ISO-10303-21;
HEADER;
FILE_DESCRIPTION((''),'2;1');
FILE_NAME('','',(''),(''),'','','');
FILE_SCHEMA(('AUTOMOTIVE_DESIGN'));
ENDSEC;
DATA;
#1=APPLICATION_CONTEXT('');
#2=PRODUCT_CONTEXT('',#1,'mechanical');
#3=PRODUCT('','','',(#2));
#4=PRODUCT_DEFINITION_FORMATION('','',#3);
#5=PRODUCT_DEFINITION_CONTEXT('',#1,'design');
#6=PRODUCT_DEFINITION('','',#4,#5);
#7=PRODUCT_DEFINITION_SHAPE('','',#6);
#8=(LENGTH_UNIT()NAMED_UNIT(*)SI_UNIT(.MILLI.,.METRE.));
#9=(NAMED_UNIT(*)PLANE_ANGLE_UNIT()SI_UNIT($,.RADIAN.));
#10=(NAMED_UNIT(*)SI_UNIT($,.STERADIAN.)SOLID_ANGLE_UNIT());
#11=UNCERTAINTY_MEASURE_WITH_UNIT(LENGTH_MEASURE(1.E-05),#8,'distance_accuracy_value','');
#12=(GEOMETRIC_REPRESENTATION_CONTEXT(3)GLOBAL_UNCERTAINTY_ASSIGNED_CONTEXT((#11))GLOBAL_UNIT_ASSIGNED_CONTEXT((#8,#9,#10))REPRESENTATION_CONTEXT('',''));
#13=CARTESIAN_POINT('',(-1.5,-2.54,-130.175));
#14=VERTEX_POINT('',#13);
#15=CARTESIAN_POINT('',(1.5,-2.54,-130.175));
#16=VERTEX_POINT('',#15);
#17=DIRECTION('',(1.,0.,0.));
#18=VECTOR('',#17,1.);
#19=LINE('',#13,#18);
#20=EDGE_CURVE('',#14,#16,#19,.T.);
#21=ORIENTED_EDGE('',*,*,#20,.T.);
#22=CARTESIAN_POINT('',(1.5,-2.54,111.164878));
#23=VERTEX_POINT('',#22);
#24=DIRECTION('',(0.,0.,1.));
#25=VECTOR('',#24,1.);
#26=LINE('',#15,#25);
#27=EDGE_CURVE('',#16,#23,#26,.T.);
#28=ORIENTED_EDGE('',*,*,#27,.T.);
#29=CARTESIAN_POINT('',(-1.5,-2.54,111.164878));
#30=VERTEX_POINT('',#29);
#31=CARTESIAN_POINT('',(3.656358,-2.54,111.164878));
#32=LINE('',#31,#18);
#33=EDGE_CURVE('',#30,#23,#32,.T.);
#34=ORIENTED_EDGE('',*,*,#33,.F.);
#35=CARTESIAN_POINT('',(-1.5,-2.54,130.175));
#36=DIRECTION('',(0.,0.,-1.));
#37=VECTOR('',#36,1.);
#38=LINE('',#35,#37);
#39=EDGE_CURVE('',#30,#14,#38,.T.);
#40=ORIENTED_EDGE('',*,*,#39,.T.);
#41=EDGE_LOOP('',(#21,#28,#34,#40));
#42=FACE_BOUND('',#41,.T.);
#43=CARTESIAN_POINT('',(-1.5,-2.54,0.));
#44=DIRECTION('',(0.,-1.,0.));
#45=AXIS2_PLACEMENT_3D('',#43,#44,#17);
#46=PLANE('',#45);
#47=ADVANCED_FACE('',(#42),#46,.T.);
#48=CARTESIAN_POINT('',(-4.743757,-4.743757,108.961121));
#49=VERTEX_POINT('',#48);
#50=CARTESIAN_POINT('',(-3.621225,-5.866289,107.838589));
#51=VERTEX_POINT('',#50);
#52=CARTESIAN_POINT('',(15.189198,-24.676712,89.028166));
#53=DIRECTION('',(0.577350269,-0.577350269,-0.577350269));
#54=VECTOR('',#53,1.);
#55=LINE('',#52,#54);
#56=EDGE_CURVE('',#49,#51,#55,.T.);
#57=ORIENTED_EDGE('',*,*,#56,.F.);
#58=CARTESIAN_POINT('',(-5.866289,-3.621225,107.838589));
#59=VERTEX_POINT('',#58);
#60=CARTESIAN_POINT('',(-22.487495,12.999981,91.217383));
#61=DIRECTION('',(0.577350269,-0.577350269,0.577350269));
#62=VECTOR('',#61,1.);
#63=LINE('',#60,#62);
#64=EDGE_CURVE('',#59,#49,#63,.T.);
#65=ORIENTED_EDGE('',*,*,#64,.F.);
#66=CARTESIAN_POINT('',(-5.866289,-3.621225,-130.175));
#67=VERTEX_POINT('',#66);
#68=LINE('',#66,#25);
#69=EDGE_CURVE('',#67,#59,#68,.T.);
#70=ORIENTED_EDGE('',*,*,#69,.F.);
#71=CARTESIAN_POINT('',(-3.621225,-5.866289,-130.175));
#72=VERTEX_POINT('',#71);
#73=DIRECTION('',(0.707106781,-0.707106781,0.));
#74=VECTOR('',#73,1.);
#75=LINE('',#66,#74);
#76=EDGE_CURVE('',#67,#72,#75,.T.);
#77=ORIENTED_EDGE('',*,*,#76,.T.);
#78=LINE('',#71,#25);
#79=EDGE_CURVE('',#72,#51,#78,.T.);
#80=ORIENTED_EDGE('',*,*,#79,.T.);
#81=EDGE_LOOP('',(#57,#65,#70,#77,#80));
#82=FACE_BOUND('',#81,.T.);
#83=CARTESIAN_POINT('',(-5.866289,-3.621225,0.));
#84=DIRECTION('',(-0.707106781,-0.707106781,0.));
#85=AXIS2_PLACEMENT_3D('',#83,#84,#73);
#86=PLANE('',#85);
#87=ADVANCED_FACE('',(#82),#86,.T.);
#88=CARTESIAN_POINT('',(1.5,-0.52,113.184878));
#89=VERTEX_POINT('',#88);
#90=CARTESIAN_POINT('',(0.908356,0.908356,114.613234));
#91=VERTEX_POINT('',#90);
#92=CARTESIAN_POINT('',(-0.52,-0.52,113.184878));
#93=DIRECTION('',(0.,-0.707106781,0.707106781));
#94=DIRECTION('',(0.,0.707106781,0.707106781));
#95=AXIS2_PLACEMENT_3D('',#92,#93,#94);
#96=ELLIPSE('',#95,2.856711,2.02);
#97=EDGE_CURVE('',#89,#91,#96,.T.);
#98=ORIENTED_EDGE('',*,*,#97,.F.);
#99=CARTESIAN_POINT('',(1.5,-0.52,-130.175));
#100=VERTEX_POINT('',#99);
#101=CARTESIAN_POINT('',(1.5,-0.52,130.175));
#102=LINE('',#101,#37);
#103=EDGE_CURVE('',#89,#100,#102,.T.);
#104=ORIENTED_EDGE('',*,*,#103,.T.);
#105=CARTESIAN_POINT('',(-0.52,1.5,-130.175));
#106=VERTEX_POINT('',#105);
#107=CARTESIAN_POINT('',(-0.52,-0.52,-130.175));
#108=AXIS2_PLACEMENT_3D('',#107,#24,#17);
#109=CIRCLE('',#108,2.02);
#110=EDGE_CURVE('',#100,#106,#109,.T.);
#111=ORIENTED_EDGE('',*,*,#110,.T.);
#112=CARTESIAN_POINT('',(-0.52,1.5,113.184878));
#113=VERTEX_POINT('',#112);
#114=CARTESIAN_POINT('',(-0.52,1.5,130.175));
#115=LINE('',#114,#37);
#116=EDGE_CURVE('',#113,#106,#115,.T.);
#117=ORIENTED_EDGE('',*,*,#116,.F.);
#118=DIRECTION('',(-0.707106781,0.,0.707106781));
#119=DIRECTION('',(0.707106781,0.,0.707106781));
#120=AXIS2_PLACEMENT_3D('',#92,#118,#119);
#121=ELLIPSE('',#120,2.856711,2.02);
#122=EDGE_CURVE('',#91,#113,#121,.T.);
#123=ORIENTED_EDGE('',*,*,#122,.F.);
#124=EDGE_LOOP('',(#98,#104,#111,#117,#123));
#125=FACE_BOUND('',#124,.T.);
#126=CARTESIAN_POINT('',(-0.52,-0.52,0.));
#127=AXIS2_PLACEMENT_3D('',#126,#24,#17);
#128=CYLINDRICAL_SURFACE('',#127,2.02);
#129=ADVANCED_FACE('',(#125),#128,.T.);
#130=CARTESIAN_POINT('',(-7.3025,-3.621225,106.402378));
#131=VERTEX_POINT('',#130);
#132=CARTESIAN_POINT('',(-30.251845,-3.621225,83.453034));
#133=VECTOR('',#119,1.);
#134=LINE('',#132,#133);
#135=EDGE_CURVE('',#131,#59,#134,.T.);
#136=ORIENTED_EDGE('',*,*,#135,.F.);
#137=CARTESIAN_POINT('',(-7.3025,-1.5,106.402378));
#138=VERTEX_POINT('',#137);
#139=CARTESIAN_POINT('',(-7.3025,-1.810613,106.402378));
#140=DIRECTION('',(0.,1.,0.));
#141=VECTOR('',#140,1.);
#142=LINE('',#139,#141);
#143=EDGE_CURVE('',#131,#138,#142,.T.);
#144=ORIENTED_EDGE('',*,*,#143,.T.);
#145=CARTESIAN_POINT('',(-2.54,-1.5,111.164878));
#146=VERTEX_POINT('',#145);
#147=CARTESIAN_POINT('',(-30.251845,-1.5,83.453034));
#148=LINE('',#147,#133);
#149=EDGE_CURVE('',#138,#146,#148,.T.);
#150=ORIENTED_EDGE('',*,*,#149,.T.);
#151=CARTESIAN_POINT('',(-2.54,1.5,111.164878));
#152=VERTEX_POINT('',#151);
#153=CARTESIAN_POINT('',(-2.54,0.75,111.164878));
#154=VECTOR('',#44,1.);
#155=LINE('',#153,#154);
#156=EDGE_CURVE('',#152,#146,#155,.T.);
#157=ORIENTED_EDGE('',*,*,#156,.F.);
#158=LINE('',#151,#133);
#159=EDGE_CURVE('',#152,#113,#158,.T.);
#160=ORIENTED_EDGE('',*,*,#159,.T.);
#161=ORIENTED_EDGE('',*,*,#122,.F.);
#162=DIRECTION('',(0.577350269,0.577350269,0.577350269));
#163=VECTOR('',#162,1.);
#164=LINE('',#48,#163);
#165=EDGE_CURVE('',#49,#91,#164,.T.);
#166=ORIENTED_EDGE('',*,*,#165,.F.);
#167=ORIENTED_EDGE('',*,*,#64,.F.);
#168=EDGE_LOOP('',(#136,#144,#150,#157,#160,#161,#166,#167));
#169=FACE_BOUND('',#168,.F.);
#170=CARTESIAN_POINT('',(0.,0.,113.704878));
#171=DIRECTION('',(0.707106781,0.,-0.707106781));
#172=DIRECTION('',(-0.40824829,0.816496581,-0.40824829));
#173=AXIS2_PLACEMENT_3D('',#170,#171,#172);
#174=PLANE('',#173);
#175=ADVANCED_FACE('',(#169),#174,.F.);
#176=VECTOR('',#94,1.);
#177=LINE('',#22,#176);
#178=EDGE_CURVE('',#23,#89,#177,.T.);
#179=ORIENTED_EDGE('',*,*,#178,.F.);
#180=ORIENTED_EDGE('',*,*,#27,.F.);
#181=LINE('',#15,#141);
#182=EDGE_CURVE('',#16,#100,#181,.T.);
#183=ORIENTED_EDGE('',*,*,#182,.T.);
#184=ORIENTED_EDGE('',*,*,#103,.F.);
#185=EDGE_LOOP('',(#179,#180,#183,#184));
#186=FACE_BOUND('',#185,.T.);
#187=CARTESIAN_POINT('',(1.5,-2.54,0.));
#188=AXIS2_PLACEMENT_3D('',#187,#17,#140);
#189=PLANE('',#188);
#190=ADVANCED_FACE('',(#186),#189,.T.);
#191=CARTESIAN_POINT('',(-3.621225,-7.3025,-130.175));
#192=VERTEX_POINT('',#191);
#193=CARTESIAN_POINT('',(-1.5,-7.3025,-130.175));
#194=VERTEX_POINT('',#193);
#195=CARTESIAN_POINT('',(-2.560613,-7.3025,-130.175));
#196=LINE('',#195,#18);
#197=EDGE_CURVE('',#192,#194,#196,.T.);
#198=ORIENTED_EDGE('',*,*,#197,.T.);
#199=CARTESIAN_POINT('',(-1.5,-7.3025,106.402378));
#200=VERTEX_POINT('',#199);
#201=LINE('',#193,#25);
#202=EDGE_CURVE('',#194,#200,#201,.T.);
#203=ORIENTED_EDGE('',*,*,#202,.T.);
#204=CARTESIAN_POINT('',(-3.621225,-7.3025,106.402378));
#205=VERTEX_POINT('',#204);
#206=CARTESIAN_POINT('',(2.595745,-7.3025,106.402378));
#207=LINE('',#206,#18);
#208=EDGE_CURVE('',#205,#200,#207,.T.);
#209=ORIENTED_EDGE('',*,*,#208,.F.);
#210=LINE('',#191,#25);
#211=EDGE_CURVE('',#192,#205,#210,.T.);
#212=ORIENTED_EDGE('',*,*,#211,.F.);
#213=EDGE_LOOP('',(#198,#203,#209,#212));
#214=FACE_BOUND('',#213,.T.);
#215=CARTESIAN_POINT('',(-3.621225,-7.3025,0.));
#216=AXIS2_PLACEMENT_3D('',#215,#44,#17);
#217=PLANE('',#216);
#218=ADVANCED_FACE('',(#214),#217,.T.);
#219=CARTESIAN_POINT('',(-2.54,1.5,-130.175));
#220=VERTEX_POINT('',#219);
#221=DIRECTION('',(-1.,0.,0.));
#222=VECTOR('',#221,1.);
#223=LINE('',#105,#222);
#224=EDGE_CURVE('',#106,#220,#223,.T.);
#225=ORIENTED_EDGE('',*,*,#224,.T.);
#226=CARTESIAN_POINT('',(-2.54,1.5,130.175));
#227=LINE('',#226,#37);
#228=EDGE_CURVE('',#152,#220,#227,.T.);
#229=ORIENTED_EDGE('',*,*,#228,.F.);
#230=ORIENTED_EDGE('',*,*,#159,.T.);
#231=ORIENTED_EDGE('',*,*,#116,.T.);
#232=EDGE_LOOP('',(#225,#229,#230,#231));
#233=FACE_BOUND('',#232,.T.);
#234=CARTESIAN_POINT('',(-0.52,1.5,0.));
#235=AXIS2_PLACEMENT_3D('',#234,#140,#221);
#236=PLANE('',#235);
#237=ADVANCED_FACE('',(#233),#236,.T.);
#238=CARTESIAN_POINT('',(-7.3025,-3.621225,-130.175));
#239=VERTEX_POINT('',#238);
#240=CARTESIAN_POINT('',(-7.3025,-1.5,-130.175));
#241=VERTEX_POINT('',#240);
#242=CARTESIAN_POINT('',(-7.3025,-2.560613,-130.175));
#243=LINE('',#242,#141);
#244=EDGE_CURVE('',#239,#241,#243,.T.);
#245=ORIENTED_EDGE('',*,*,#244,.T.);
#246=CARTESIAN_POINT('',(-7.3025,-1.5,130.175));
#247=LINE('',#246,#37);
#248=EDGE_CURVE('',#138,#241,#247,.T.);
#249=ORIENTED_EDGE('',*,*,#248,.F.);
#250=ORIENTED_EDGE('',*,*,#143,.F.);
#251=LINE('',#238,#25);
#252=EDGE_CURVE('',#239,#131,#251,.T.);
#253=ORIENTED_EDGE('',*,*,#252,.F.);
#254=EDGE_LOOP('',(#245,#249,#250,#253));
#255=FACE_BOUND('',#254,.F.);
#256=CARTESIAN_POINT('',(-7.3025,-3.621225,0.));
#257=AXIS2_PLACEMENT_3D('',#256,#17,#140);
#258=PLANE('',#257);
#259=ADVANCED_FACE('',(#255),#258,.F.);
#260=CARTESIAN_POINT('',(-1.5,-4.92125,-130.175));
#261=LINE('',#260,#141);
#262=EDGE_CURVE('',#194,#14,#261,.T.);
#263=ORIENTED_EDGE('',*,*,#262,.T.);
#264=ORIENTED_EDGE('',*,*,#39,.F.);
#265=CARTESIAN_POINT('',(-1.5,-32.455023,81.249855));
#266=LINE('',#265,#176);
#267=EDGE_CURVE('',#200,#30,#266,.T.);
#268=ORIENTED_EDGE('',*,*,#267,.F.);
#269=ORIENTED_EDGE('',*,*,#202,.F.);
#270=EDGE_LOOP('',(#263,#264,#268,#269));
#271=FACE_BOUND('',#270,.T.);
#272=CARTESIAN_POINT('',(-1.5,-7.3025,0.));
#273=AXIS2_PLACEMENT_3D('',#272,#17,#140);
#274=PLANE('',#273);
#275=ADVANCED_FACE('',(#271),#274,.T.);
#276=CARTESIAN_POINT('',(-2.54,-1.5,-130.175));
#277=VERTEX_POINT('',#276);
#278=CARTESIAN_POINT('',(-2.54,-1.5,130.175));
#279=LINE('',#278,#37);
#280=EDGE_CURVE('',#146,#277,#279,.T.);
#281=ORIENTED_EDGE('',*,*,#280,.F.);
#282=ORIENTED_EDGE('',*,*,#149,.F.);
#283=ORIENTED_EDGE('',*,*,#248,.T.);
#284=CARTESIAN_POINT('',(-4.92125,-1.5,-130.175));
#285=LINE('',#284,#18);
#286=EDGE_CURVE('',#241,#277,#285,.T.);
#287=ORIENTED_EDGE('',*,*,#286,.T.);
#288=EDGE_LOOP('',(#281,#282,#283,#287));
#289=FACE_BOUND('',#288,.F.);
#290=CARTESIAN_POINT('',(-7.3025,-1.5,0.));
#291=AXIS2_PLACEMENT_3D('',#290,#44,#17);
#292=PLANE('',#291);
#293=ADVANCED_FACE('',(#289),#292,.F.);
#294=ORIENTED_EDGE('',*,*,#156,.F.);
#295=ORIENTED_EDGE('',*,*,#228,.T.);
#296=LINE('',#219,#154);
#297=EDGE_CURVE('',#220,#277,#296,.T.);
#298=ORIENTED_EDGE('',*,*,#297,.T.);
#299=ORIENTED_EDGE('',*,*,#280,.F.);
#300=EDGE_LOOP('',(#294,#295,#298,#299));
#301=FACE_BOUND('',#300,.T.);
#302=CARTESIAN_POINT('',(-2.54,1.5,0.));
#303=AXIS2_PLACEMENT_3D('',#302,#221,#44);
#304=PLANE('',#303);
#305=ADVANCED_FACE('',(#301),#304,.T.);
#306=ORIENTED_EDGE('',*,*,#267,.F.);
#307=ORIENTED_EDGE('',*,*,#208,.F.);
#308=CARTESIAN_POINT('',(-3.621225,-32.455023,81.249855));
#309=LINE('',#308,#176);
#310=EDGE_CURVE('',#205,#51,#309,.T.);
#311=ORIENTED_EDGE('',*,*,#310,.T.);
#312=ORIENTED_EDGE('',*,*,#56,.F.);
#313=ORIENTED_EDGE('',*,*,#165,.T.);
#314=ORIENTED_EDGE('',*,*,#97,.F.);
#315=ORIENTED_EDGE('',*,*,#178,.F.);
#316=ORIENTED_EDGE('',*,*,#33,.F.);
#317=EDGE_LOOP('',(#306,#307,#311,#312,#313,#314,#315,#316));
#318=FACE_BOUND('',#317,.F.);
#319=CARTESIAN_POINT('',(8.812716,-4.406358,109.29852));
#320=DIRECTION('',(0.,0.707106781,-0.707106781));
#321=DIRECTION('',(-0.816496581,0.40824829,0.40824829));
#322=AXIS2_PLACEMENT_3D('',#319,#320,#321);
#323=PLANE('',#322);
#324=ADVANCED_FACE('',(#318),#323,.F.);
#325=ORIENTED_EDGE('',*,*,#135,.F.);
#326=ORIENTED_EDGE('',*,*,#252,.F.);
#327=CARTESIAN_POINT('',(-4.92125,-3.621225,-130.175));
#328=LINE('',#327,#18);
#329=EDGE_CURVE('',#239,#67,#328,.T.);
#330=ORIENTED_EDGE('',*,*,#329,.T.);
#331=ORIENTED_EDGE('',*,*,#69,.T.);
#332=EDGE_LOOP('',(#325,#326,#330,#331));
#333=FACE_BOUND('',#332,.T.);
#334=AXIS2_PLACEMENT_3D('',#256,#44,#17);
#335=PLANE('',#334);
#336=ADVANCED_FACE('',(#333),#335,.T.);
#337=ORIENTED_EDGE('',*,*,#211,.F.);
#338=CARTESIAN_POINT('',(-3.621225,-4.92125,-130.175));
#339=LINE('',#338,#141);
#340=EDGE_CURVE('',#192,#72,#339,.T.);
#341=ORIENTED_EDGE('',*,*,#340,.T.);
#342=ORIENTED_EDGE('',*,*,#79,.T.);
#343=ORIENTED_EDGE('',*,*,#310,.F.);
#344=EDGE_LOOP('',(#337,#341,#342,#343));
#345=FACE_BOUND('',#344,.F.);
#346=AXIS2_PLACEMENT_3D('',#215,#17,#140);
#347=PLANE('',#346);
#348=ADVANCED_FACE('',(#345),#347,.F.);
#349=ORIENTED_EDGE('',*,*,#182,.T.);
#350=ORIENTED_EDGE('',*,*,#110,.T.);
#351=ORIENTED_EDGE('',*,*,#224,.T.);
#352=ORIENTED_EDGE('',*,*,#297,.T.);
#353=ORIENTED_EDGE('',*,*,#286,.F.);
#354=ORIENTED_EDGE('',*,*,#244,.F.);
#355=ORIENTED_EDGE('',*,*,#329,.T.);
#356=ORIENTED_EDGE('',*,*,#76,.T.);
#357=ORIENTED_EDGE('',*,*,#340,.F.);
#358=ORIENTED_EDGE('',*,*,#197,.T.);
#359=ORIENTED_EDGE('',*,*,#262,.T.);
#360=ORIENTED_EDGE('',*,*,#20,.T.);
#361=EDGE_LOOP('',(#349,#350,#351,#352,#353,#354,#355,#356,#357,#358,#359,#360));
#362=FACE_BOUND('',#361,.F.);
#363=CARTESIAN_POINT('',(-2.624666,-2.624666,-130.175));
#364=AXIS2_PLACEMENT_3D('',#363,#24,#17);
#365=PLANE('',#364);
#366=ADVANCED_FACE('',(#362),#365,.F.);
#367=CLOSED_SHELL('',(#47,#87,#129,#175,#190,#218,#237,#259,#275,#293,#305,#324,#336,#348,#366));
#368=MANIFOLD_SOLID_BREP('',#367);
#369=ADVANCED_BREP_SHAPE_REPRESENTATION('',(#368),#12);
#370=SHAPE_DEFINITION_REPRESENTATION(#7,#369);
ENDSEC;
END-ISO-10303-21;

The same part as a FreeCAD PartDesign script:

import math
import FreeCAD as App
import Part
import Sketcher
Q = App.Units.Quantity

doc = App.newDocument("Part")
body = doc.addObject("PartDesign::Body", "Body")

# Sketch on XY plane
sketch1 = body.newObject("Sketcher::SketchObject", "Sketch")
sketch1.AttachmentSupport = (doc.getObject("XY_Plane"), [""])
sketch1.MapMode = "FlatFace"
sketch1.addGeometry([
    Part.LineSegment(App.Vector(-7.3, -1.5, 0), App.Vector(-7.3, -3.6, 0)),
    Part.LineSegment(App.Vector(-7.3, -3.6, 0), App.Vector(-2.5, -3.6, 0)),
    Part.LineSegment(App.Vector(-2.5, -3.6, 0), App.Vector(-2.5, -1.5, 0)),
    Part.LineSegment(App.Vector(-2.5, -1.5, 0), App.Vector(-7.3, -1.5, 0)),
], False)
sketch1.addConstraint([
    Sketcher.Constraint("Coincident", 0, 2, 1, 1),
    Sketcher.Constraint("Coincident", 1, 2, 2, 1),
    Sketcher.Constraint("Coincident", 2, 2, 3, 1),
    Sketcher.Constraint("Coincident", 3, 2, 0, 1),
    Sketcher.Constraint("Vertical", 0),
    Sketcher.Constraint("Horizontal", 1),
    Sketcher.Constraint("Vertical", 2),
    Sketcher.Constraint("Horizontal", 3),
    Sketcher.Constraint("DistanceX", 1, 2, -1, 1, Q("0.1 in")),
    Sketcher.Constraint("DistanceX", 1, 1, 1, 2, Q("0.1875 in")),
    Sketcher.Constraint("DistanceY", 2, 2, -1, 1, 1.5),
    Sketcher.Constraint("DistanceY", 0, 2, 0, 1, 2.121225),
])
pad1 = body.newObject("PartDesign::Pad", "Pad")
pad1.Profile = sketch1
pad1.Length = Q("10.25 in")
pad1.Midplane = True

# Sketch on XY plane
sketch2 = body.newObject("Sketcher::SketchObject", "Sketch001")
sketch2.AttachmentSupport = (doc.getObject("XY_Plane"), [""])
sketch2.MapMode = "FlatFace"
sketch2.addGeometry([
    Part.LineSegment(App.Vector(-3.6, -2.5, 0), App.Vector(-3.6, -7.3, 0)),
    Part.LineSegment(App.Vector(-3.6, -7.3, 0), App.Vector(-1.5, -7.3, 0)),
    Part.LineSegment(App.Vector(-1.5, -7.3, 0), App.Vector(-1.5, -2.5, 0)),
    Part.LineSegment(App.Vector(-1.5, -2.5, 0), App.Vector(-3.6, -2.5, 0)),
], False)
sketch2.addConstraint([
    Sketcher.Constraint("Coincident", 0, 2, 1, 1),
    Sketcher.Constraint("Coincident", 1, 2, 2, 1),
    Sketcher.Constraint("Coincident", 2, 2, 3, 1),
    Sketcher.Constraint("Coincident", 3, 2, 0, 1),
    Sketcher.Constraint("Vertical", 0),
    Sketcher.Constraint("Horizontal", 1),
    Sketcher.Constraint("Vertical", 2),
    Sketcher.Constraint("Horizontal", 3),
    Sketcher.Constraint("DistanceY", 2, 2, -1, 1, Q("0.1 in")),
    Sketcher.Constraint("DistanceY", 0, 2, 0, 1, Q("0.1875 in")),
    Sketcher.Constraint("DistanceX", 1, 2, -1, 1, 1.5),
    Sketcher.Constraint("DistanceX", 1, 1, 1, 2, 2.121225),
])
pad2 = body.newObject("PartDesign::Pad", "Pad001")
pad2.Profile = sketch2
pad2.Length = Q("10.25 in")
pad2.Midplane = True

# Sketch on XY plane
sketch3 = body.newObject("Sketcher::SketchObject", "Sketch002")
sketch3.AttachmentSupport = (doc.getObject("XY_Plane"), [""])
sketch3.MapMode = "FlatFace"
sketch3.addGeometry([
    Part.LineSegment(App.Vector(-2.5, 1.5, 0), App.Vector(-2.5, -1.5, 0)),  # 0
    Part.LineSegment(App.Vector(-2.5, -1.5, 0), App.Vector(-7.3, -1.5, 0)),  # 1
    Part.LineSegment(App.Vector(-7.3, -1.5, 0), App.Vector(-7.3, -3.6, 0)),  # 2
    Part.LineSegment(App.Vector(-7.3, -3.6, 0), App.Vector(-5.9, -3.6, 0)),  # 3
    Part.LineSegment(App.Vector(-5.9, -3.6, 0), App.Vector(-3.6, -5.9, 0)),  # 4
    Part.LineSegment(App.Vector(-3.6, -5.9, 0), App.Vector(-3.6, -7.3, 0)),  # 5
    Part.LineSegment(App.Vector(-3.6, -7.3, 0), App.Vector(-1.5, -7.3, 0)),  # 6
    Part.LineSegment(App.Vector(-1.5, -7.3, 0), App.Vector(-1.5, -2.5, 0)),  # 7
    Part.LineSegment(App.Vector(-1.5, -2.5, 0), App.Vector(1.5, -2.5, 0)),  # 8
    Part.LineSegment(App.Vector(1.5, -2.5, 0), App.Vector(1.5, -0.5, 0)),  # 9
    Part.ArcOfCircle(Part.Circle(App.Vector(-0.5, -0.5, 0), App.Vector(0, 0, 1), 2), math.radians(0), math.radians(90)),  # 10
    Part.LineSegment(App.Vector(-0.5, 1.5, 0), App.Vector(-2.5, 1.5, 0)),  # 11
], False)
sketch3.addConstraint([
    Sketcher.Constraint("Coincident", 0, 2, 1, 1),
    Sketcher.Constraint("Coincident", 1, 2, 2, 1),
    Sketcher.Constraint("Coincident", 2, 2, 3, 1),
    Sketcher.Constraint("Coincident", 3, 2, 4, 1),
    Sketcher.Constraint("Coincident", 4, 2, 5, 1),
    Sketcher.Constraint("Coincident", 5, 2, 6, 1),
    Sketcher.Constraint("Coincident", 6, 2, 7, 1),
    Sketcher.Constraint("Coincident", 7, 2, 8, 1),
    Sketcher.Constraint("Coincident", 8, 2, 9, 1),
    Sketcher.Constraint("Tangent", 9, 2, 10, 1),
    Sketcher.Constraint("Tangent", 10, 2, 11, 1),
    Sketcher.Constraint("Coincident", 11, 2, 0, 1),
    Sketcher.Constraint("Vertical", 0),
    Sketcher.Constraint("Horizontal", 1),
    Sketcher.Constraint("Vertical", 2),
    Sketcher.Constraint("Horizontal", 3),
    Sketcher.Constraint("Vertical", 5),
    Sketcher.Constraint("Horizontal", 6),
    Sketcher.Constraint("Vertical", 7),
    Sketcher.Constraint("Horizontal", 8),
    Sketcher.Constraint("Vertical", 9),
    Sketcher.Constraint("Horizontal", 11),
    Sketcher.Constraint("Equal", 8, 0),
    Sketcher.Constraint("Equal", 6, 2),
    Sketcher.Constraint("Equal", 3, 5),
    Sketcher.Constraint("Equal", 1, 7),
    Sketcher.Constraint("Equal", 11, 9),
    Sketcher.Constraint("DistanceX", 0, 2, -1, 1, Q("0.1 in")),
    Sketcher.Constraint("DistanceY", 7, 2, -1, 1, Q("0.1 in")),
    Sketcher.Constraint("DistanceX", 1, 2, 1, 1, Q("0.1875 in")),
    Sketcher.Constraint("Radius", 10, 2.02),
    Sketcher.Constraint("Distance", 4, Q("0.125 in")),
    Sketcher.Constraint("DistanceX", 8, 1, 8, 2, 3.0),
    Sketcher.Constraint("DistanceX", 11, 2, 11, 1, 2.02),
    Sketcher.Constraint("DistanceX", 3, 1, 3, 2, 1.436211),
])
pad3 = body.newObject("PartDesign::Pad", "Pad002")
pad3.Profile = sketch3
pad3.Length = Q("10.25 in")
pad3.Midplane = True

# Sketch on an angled plane
sketch4 = body.newObject("Sketcher::SketchObject", "Sketch003")
sketch4.Placement = App.Placement(App.Vector(0, 0, 113.704878), App.Rotation(App.Vector(0.707106781, 0, -0.707106781), App.Vector(0.40824829, -0.81649658, 0.40824829), App.Vector(-0.577350269, -0.577350269, -0.577350269), "ZXY"))
sketch4.addGeometry([
    Part.LineSegment(App.Vector(0, 0, 0), App.Vector(9, 5, 0)),  # 0
    Part.LineSegment(App.Vector(9, 5, 0), App.Vector(-211, 132, 0)),  # 1
    Part.LineSegment(App.Vector(-211, 132, 0), App.Vector(-220, 116, 0)),  # 2
    Part.LineSegment(App.Vector(-220, 116, 0), App.Vector(0, -11, 0)),  # 3
    Part.LineSegment(App.Vector(0, -11, 0), App.Vector(0, 0, 0)),  # 4
], False)
sketch4.addConstraint([
    Sketcher.Constraint("Coincident", 0, 2, 1, 1),
    Sketcher.Constraint("Coincident", 1, 2, 2, 1),
    Sketcher.Constraint("Coincident", 2, 2, 3, 1),
    Sketcher.Constraint("Coincident", 3, 2, 4, 1),
    Sketcher.Constraint("Coincident", 4, 2, 0, 1),
    Sketcher.Constraint("Vertical", 4),
    Sketcher.Constraint("Coincident", 4, 2, -1, 1),
    Sketcher.Constraint("Perpendicular", 1, 2),
    Sketcher.Constraint("Perpendicular", 2, 3),
    Sketcher.Constraint("Equal", 1, 3),
    Sketcher.Constraint("Distance", 1, Q("10 in")),
    Sketcher.Constraint("Angle", 0, Q("30 deg")),
    Sketcher.Constraint("Angle", 1, Q("150 deg")),
    Sketcher.Constraint("DistanceY", 4, 1, 4, 2, 10.793329),
])
pocket1 = body.newObject("PartDesign::Pocket", "Pocket")
pocket1.Profile = sketch4
pocket1.Type = "ThroughAll"
pocket1.Midplane = True

doc.recompute()
